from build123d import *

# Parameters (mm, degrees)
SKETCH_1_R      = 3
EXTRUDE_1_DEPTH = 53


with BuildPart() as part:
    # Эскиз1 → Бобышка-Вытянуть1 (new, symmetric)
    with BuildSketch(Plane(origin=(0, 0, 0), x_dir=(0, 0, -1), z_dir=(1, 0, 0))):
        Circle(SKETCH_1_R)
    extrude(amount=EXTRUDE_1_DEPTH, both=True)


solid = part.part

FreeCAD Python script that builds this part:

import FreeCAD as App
import Part
import Sketcher

V = App.Vector

doc = App.newDocument("Part")
body = doc.addObject("PartDesign::Body", "Body")

sketch1 = body.newObject("Sketcher::SketchObject", "Sketch")
sketch1.AttachmentSupport = (doc.getObject("YZ_Plane"), [""])
sketch1.MapMode = "FlatFace"
sketch1.addGeometry(Part.Circle(V(0, 0, 0), V(0, 0, 1), 3), False)
sketch1.addConstraint([
    Sketcher.Constraint("Coincident", 0, 3, -1, 1),
    Sketcher.Constraint("Diameter", 0, 6.0),
])
pad1 = body.newObject("PartDesign::Pad", "Pad")
pad1.Profile = sketch1
pad1.Length = 106
pad1.Midplane = True

doc.recompute()
